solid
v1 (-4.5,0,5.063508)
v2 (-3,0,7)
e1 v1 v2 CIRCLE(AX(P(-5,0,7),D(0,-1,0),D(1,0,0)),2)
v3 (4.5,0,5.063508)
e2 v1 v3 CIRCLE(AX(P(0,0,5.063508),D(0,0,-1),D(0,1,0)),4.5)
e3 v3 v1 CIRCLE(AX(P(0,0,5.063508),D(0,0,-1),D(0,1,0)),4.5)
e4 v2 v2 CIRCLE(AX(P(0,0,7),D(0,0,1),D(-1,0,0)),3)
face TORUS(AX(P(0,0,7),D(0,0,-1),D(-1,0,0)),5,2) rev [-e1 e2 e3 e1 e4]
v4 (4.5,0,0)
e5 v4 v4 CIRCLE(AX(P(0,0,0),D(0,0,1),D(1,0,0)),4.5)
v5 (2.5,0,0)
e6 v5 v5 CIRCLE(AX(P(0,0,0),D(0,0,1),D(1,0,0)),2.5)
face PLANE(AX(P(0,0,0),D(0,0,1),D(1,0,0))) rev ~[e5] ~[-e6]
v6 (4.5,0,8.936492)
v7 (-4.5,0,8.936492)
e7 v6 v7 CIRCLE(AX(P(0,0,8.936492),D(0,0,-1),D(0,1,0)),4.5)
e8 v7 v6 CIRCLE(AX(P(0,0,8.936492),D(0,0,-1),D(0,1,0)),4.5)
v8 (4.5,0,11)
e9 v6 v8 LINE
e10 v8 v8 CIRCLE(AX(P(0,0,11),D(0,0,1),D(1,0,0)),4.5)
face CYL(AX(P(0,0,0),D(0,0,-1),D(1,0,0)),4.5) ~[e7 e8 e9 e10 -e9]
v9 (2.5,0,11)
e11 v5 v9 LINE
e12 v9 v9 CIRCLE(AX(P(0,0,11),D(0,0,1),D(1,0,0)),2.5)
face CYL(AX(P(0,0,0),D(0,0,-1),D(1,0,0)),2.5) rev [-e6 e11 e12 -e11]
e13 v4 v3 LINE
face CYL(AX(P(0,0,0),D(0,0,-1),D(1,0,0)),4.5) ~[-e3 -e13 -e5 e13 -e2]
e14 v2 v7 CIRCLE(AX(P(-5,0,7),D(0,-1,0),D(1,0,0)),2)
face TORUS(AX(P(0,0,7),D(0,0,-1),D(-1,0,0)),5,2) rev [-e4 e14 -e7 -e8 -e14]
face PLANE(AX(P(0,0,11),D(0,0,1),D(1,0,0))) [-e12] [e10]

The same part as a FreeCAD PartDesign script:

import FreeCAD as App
import Part
import Sketcher

doc = App.newDocument("Part")
params = doc.addObject("Spreadsheet::Sheet", "Params")
for row, (alias, value) in enumerate([
    ("sketch1_diameter", "9 mm"),
    ("sketch1_diameter2", "5 mm"),
    ("pad1_length", "11 mm"),
    ("sketch2_diameter", "4 mm"),
    ("groove_angle", "360 deg"),
], start=1):
    params.set(f"A{row}", alias)
    params.set(f"B{row}", "=" + value)
    params.setAlias(f"B{row}", alias)

body = doc.addObject("PartDesign::Body", "Body")

sketch1 = body.newObject("Sketcher::SketchObject", "Sketch")
sketch1.AttachmentSupport = (doc.getObject("XY_Plane"), [""])
sketch1.MapMode = "FlatFace"
sketch1.addGeometry(Part.Circle(App.Vector(0, 0, 0), App.Vector(0, 0, 1), 4.5), False)
sketch1.addGeometry(Part.Circle(App.Vector(0, 0, 0), App.Vector(0, 0, 1), 2.5), False)
sketch1.addConstraint(Sketcher.Constraint("Coincident", 0, 3, -1, 1))
sketch1.addConstraint(Sketcher.Constraint("Coincident", 1, 3, -1, 1))
sketch1.addConstraint(Sketcher.Constraint("Diameter", 0, 9.0))
sketch1.addConstraint(Sketcher.Constraint("Diameter", 1, 5.0))
sketch1.setExpression("Constraints[2]", "Params.sketch1_diameter")
sketch1.setExpression("Constraints[3]", "Params.sketch1_diameter2")
pad1 = body.newObject("PartDesign::Pad", "Pad")
pad1.Profile = sketch1
pad1.setExpression("Length", "Params.pad1_length")

sketch2 = body.newObject("Sketcher::SketchObject", "Sketch001")
sketch2.AttachmentSupport = (doc.getObject("XZ_Plane"), [""])
sketch2.MapMode = "FlatFace"
sketch2.addGeometry(Part.Circle(App.Vector(-5, 7, 0), App.Vector(0, 0, 1), 2), False)
sketch2.addConstraint(Sketcher.Constraint("Diameter", 0, 4.0))
sketch2.addConstraint(Sketcher.Constraint("DistanceX", 0, 3, -1, 1, 5.0))
sketch2.addConstraint(Sketcher.Constraint("DistanceY", -1, 1, 0, 3, 7.0))
sketch2.setExpression("Constraints[0]", "Params.sketch2_diameter")
groove = body.newObject("PartDesign::Groove", "Groove")
groove.Profile = sketch2
groove.ReferenceAxis = (sketch2, ["V_Axis"])
groove.setExpression("Angle", "Params.groove_angle")

doc.recompute()
